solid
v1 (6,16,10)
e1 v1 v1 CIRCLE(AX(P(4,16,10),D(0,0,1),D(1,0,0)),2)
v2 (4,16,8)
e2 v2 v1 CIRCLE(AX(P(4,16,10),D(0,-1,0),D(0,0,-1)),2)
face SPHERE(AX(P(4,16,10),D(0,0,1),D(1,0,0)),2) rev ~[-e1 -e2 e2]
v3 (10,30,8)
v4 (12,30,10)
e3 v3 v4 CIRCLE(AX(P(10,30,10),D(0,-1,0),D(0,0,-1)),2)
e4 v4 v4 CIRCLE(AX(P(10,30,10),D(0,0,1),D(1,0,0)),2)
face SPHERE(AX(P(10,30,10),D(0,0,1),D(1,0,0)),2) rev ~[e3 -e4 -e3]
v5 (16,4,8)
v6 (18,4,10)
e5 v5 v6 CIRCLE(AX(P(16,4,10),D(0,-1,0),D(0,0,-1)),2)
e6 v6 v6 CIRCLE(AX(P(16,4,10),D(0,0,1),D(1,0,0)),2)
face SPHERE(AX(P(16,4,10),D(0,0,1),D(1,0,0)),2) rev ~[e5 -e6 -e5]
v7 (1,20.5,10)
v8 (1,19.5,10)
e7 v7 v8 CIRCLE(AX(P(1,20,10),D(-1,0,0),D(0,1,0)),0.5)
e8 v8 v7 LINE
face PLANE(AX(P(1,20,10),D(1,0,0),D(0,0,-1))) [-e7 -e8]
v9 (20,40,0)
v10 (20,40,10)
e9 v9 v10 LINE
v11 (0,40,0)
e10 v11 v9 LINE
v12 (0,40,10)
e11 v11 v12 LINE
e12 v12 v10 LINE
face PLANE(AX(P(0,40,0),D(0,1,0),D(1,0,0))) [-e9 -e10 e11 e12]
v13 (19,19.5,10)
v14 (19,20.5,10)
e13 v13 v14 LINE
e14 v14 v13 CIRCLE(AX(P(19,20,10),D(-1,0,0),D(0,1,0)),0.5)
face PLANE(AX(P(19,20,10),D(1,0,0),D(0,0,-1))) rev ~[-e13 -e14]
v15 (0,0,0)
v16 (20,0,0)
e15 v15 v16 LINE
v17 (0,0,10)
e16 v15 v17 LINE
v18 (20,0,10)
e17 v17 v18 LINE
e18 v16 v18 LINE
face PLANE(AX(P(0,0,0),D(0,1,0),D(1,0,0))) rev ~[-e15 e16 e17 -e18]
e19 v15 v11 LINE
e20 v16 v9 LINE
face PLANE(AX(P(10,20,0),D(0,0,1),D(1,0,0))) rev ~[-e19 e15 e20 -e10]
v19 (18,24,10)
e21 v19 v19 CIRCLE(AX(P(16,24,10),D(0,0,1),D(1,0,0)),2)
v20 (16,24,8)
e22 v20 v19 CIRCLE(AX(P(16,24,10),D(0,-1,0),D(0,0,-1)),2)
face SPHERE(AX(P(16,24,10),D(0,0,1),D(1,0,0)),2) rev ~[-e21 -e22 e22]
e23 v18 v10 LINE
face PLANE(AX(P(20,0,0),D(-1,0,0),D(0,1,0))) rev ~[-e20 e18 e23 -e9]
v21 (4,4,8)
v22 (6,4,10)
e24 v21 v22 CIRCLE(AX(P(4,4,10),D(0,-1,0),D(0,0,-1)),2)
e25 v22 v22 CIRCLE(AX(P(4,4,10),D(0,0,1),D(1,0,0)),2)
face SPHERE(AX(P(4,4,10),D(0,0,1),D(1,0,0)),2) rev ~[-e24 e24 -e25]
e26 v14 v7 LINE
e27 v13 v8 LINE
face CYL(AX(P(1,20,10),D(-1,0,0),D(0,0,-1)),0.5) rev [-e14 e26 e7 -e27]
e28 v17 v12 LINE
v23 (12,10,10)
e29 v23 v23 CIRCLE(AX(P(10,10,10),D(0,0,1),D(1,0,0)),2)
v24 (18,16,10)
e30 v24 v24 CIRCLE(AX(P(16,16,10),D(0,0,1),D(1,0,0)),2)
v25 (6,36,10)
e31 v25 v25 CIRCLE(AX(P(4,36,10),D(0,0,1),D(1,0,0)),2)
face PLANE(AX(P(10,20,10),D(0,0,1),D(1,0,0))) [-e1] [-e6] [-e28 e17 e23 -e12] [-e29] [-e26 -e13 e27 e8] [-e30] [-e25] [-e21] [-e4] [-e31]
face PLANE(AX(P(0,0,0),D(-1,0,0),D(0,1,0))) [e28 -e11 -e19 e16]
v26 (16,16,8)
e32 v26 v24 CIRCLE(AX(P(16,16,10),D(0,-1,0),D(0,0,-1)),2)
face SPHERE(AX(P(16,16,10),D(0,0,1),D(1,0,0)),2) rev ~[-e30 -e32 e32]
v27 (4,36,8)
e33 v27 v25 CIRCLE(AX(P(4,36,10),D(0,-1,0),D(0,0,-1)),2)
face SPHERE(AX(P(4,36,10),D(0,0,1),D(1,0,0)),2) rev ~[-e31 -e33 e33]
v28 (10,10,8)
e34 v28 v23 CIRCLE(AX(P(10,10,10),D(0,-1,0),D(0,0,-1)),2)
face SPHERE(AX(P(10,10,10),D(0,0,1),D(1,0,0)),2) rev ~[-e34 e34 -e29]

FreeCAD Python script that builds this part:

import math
import FreeCAD as App
import Part
import Sketcher
Q = App.Units.Quantity


def add_polygon(sketch, points):
    """Adds a closed chain of lines whose ends are joined by coincident constraints."""
    first, n = sketch.GeometryCount, len(points)
    for a, b in zip(points, points[1:] + points[:1]):
        sketch.addGeometry(Part.LineSegment(App.Vector(*a, 0), App.Vector(*b, 0)), False)
    for i in range(n):
        sketch.addConstraint(Sketcher.Constraint("Coincident", first + i, 2, first + (i + 1) % n, 1))

doc = App.newDocument("Part")
body = doc.addObject("PartDesign::Body", "Body")

sketch1 = doc.addObject("Sketcher::SketchObject", "Sketch")
body.addObject(sketch1)
sketch1.AttachmentSupport = (doc.XZ_Plane, [""])
sketch1.MapMode = "FlatFace"
sketch1.AttachmentOffset = App.Placement(App.Vector(0, 0, -24), App.Rotation())
sketch1.addGeometry([
    Part.ArcOfCircle(Part.Circle(App.Vector(16, 10, 0), App.Vector(0, 0, 1), 2), math.radians(-90), math.radians(90)),
    Part.LineSegment(App.Vector(16, 12, 0), App.Vector(16, 8, 0)),
], False)
sketch1.addGeometry(Part.LineSegment(App.Vector(16, 8, 0), App.Vector(16, 12, 0)), True)
sketch1.addConstraint([
    Sketcher.Constraint("Coincident", 0, 1, 1, 2),
    Sketcher.Constraint("Coincident", 1, 1, 0, 2),
    Sketcher.Constraint("Vertical", 1),
    Sketcher.Constraint("Vertical", 2),
    Sketcher.Constraint("Coincident", 2, 1, 0, 1),
    Sketcher.Constraint("Equal", 1, 2),
    Sketcher.Constraint("Radius", 0, Q("2 mm")),
    Sketcher.Constraint("DistanceX", -1, 1, 0, 3, Q("16 mm")),
    Sketcher.Constraint("DistanceY", -1, 1, 0, 3, Q("10 mm")),
    Sketcher.Constraint("DistanceX", -1, 1, 0, 1, Q("16 mm")),
])
revolution = doc.addObject("PartDesign::Revolution", "Revolution")
body.addObject(revolution)
revolution.Profile = sketch1
revolution.ReferenceAxis = (sketch1, ["Axis0"])
revolution.Angle = 360
body2 = doc.addObject("PartDesign::Body", "Body001")

sketch2 = doc.addObject("Sketcher::SketchObject", "Sketch001")
body2.addObject(sketch2)
sketch2.AttachmentSupport = (doc.getObject("XZ_Plane001"), [""])
sketch2.MapMode = "FlatFace"
sketch2.AttachmentOffset = App.Placement(App.Vector(0, 0, -30), App.Rotation())
sketch2.addGeometry([
    Part.ArcOfCircle(Part.Circle(App.Vector(10, 10, 0), App.Vector(0, 0, 1), 2), math.radians(-90), math.radians(90)),
    Part.LineSegment(App.Vector(10, 12, 0), App.Vector(10, 8, 0)),
], False)
sketch2.addGeometry(Part.LineSegment(App.Vector(10, 8, 0), App.Vector(10, 12, 0)), True)
sketch2.addConstraint([
    Sketcher.Constraint("Coincident", 0, 1, 1, 2),
    Sketcher.Constraint("Coincident", 1, 1, 0, 2),
    Sketcher.Constraint("Vertical", 1),
    Sketcher.Constraint("Vertical", 2),
    Sketcher.Constraint("Coincident", 2, 1, 0, 1),
    Sketcher.Constraint("Equal", 1, 2),
    Sketcher.Constraint("Radius", 0, Q("2 mm")),
    Sketcher.Constraint("DistanceX", -1, 1, 0, 3, Q("10 mm")),
    Sketcher.Constraint("DistanceY", -1, 1, 0, 3, Q("10 mm")),
    Sketcher.Constraint("DistanceX", -1, 1, 0, 1, Q("10 mm")),
])
revolution2 = doc.addObject("PartDesign::Revolution", "Revolution001")
body2.addObject(revolution2)
revolution2.Profile = sketch2
revolution2.ReferenceAxis = (sketch2, ["Axis0"])
revolution2.Angle = 360
body3 = doc.addObject("PartDesign::Body", "Body002")
body3.AllowCompound = True

sketch3 = doc.addObject("Sketcher::SketchObject", "Sketch002")
body3.addObject(sketch3)
sketch3.AttachmentSupport = (doc.getObject("XZ_Plane002"), [""])
sketch3.MapMode = "FlatFace"
sketch3.AttachmentOffset = App.Placement(App.Vector(0, 0, -36), App.Rotation())
sketch3.addGeometry([
    Part.ArcOfCircle(Part.Circle(App.Vector(4, 10, 0), App.Vector(0, 0, 1), 2), math.radians(-90), math.radians(90)),
    Part.LineSegment(App.Vector(4, 12, 0), App.Vector(4, 8, 0)),
], False)
sketch3.addGeometry(Part.LineSegment(App.Vector(4, 8, 0), App.Vector(4, 12, 0)), True)
sketch3.addConstraint([
    Sketcher.Constraint("Coincident", 0, 1, 1, 2),
    Sketcher.Constraint("Coincident", 1, 1, 0, 2),
    Sketcher.Constraint("Vertical", 1),
    Sketcher.Constraint("Vertical", 2),
    Sketcher.Constraint("Coincident", 2, 1, 0, 1),
    Sketcher.Constraint("Equal", 1, 2),
    Sketcher.Constraint("Radius", 0, Q("2 mm")),
    Sketcher.Constraint("DistanceX", -1, 1, 0, 3, Q("4 mm")),
    Sketcher.Constraint("DistanceY", -1, 1, 0, 3, Q("10 mm")),
    Sketcher.Constraint("DistanceX", -1, 1, 0, 1, Q("4 mm")),
])
revolution3 = doc.addObject("PartDesign::Revolution", "Revolution002")
body3.addObject(revolution3)
revolution3.Profile = sketch3
revolution3.ReferenceAxis = (sketch3, ["Axis0"])
revolution3.Angle = 360
doc.recompute()

boolean = doc.addObject("PartDesign::Boolean", "Boolean")
body3.addObject(boolean)
boolean.Type = "Fuse"
boolean.addObjects([body])
doc.recompute()

boolean2 = doc.addObject("PartDesign::Boolean", "Boolean001")
body3.addObject(boolean2)
boolean2.Type = "Fuse"
boolean2.addObjects([body2])
body4 = doc.addObject("PartDesign::Body", "Body003")

sketch4 = doc.addObject("Sketcher::SketchObject", "Sketch003")
body4.addObject(sketch4)
sketch4.AttachmentSupport = (doc.getObject("XZ_Plane003"), [""])
sketch4.MapMode = "FlatFace"
sketch4.AttachmentOffset = App.Placement(App.Vector(0, 0, -4), App.Rotation())
sketch4.addGeometry([
    Part.ArcOfCircle(Part.Circle(App.Vector(16, 10, 0), App.Vector(0, 0, 1), 2), math.radians(-90), math.radians(90)),
    Part.LineSegment(App.Vector(16, 12, 0), App.Vector(16, 8, 0)),
], False)
sketch4.addGeometry(Part.LineSegment(App.Vector(16, 8, 0), App.Vector(16, 12, 0)), True)
sketch4.addConstraint([
    Sketcher.Constraint("Coincident", 0, 1, 1, 2),
    Sketcher.Constraint("Coincident", 1, 1, 0, 2),
    Sketcher.Constraint("Vertical", 1),
    Sketcher.Constraint("Vertical", 2),
    Sketcher.Constraint("Coincident", 2, 1, 0, 1),
    Sketcher.Constraint("Equal", 1, 2),
    Sketcher.Constraint("Radius", 0, Q("2 mm")),
    Sketcher.Constraint("DistanceX", -1, 1, 0, 3, Q("16 mm")),
    Sketcher.Constraint("DistanceY", -1, 1, 0, 3, Q("10 mm")),
    Sketcher.Constraint("DistanceX", -1, 1, 0, 1, Q("16 mm")),
])
revolution4 = doc.addObject("PartDesign::Revolution", "Revolution003")
body4.addObject(revolution4)
revolution4.Profile = sketch4
revolution4.ReferenceAxis = (sketch4, ["Axis0"])
revolution4.Angle = 360
body5 = doc.addObject("PartDesign::Body", "Body004")

sketch5 = doc.addObject("Sketcher::SketchObject", "Sketch004")
body5.addObject(sketch5)
sketch5.AttachmentSupport = (doc.getObject("XZ_Plane004"), [""])
sketch5.MapMode = "FlatFace"
sketch5.AttachmentOffset = App.Placement(App.Vector(0, 0, -16), App.Rotation())
sketch5.addGeometry([
    Part.ArcOfCircle(Part.Circle(App.Vector(4, 10, 0), App.Vector(0, 0, 1), 2), math.radians(-90), math.radians(90)),
    Part.LineSegment(App.Vector(4, 12, 0), App.Vector(4, 8, 0)),
], False)
sketch5.addGeometry(Part.LineSegment(App.Vector(4, 8, 0), App.Vector(4, 12, 0)), True)
sketch5.addConstraint([
    Sketcher.Constraint("Coincident", 0, 1, 1, 2),
    Sketcher.Constraint("Coincident", 1, 1, 0, 2),
    Sketcher.Constraint("Vertical", 1),
    Sketcher.Constraint("Vertical", 2),
    Sketcher.Constraint("Coincident", 2, 1, 0, 1),
    Sketcher.Constraint("Equal", 1, 2),
    Sketcher.Constraint("Radius", 0, Q("2 mm")),
    Sketcher.Constraint("DistanceX", -1, 1, 0, 3, Q("4 mm")),
    Sketcher.Constraint("DistanceY", -1, 1, 0, 3, Q("10 mm")),
    Sketcher.Constraint("DistanceX", -1, 1, 0, 1, Q("4 mm")),
])
revolution5 = doc.addObject("PartDesign::Revolution", "Revolution004")
body5.addObject(revolution5)
revolution5.Profile = sketch5
revolution5.ReferenceAxis = (sketch5, ["Axis0"])
revolution5.Angle = 360
body6 = doc.addObject("PartDesign::Body", "Body005")

sketch6 = doc.addObject("Sketcher::SketchObject", "Sketch005")
body6.addObject(sketch6)
sketch6.AttachmentSupport = (doc.getObject("XZ_Plane005"), [""])
sketch6.MapMode = "FlatFace"
sketch6.AttachmentOffset = App.Placement(App.Vector(0, 0, -16), App.Rotation())
sketch6.addGeometry([
    Part.ArcOfCircle(Part.Circle(App.Vector(16, 10, 0), App.Vector(0, 0, 1), 2), math.radians(-90), math.radians(90)),
    Part.LineSegment(App.Vector(16, 12, 0), App.Vector(16, 8, 0)),
], False)
sketch6.addGeometry(Part.LineSegment(App.Vector(16, 8, 0), App.Vector(16, 12, 0)), True)
sketch6.addConstraint([
    Sketcher.Constraint("Coincident", 0, 1, 1, 2),
    Sketcher.Constraint("Coincident", 1, 1, 0, 2),
    Sketcher.Constraint("Vertical", 1),
    Sketcher.Constraint("Vertical", 2),
    Sketcher.Constraint("Coincident", 2, 1, 0, 1),
    Sketcher.Constraint("Equal", 1, 2),
    Sketcher.Constraint("Radius", 0, Q("2 mm")),
    Sketcher.Constraint("DistanceX", -1, 1, 0, 3, Q("16 mm")),
    Sketcher.Constraint("DistanceY", -1, 1, 0, 3, Q("10 mm")),
    Sketcher.Constraint("DistanceX", -1, 1, 0, 1, Q("16 mm")),
])
revolution6 = doc.addObject("PartDesign::Revolution", "Revolution005")
body6.addObject(revolution6)
revolution6.Profile = sketch6
revolution6.ReferenceAxis = (sketch6, ["Axis0"])
revolution6.Angle = 360
body7 = doc.addObject("PartDesign::Body", "Body006")

sketch7 = doc.addObject("Sketcher::SketchObject", "Sketch006")
body7.addObject(sketch7)
sketch7.AttachmentSupport = (doc.getObject("XZ_Plane006"), [""])
sketch7.MapMode = "FlatFace"
sketch7.AttachmentOffset = App.Placement(App.Vector(0, 0, -10), App.Rotation())
sketch7.addGeometry([
    Part.ArcOfCircle(Part.Circle(App.Vector(10, 10, 0), App.Vector(0, 0, 1), 2), math.radians(-90), math.radians(90)),
    Part.LineSegment(App.Vector(10, 12, 0), App.Vector(10, 8, 0)),
], False)
sketch7.addGeometry(Part.LineSegment(App.Vector(10, 8, 0), App.Vector(10, 12, 0)), True)
sketch7.addConstraint([
    Sketcher.Constraint("Coincident", 0, 1, 1, 2),
    Sketcher.Constraint("Coincident", 1, 1, 0, 2),
    Sketcher.Constraint("Vertical", 1),
    Sketcher.Constraint("Vertical", 2),
    Sketcher.Constraint("Coincident", 2, 1, 0, 1),
    Sketcher.Constraint("Equal", 1, 2),
    Sketcher.Constraint("Radius", 0, Q("2 mm")),
    Sketcher.Constraint("DistanceX", -1, 1, 0, 3, Q("10 mm")),
    Sketcher.Constraint("DistanceY", -1, 1, 0, 3, Q("10 mm")),
    Sketcher.Constraint("DistanceX", -1, 1, 0, 1, Q("10 mm")),
])
revolution7 = doc.addObject("PartDesign::Revolution", "Revolution006")
body7.addObject(revolution7)
revolution7.Profile = sketch7
revolution7.ReferenceAxis = (sketch7, ["Axis0"])
revolution7.Angle = 360
body8 = doc.addObject("PartDesign::Body", "Body007")
body8.AllowCompound = True

sketch8 = doc.addObject("Sketcher::SketchObject", "Sketch007")
body8.addObject(sketch8)
sketch8.AttachmentSupport = (doc.getObject("XZ_Plane007"), [""])
sketch8.MapMode = "FlatFace"
sketch8.AttachmentOffset = App.Placement(App.Vector(0, 0, -4), App.Rotation())
sketch8.addGeometry([
    Part.ArcOfCircle(Part.Circle(App.Vector(4, 10, 0), App.Vector(0, 0, 1), 2), math.radians(-90), math.radians(90)),
    Part.LineSegment(App.Vector(4, 12, 0), App.Vector(4, 8, 0)),
], False)
sketch8.addGeometry(Part.LineSegment(App.Vector(4, 8, 0), App.Vector(4, 12, 0)), True)
sketch8.addConstraint([
    Sketcher.Constraint("Coincident", 0, 1, 1, 2),
    Sketcher.Constraint("Coincident", 1, 1, 0, 2),
    Sketcher.Constraint("Vertical", 1),
    Sketcher.Constraint("Vertical", 2),
    Sketcher.Constraint("Coincident", 2, 1, 0, 1),
    Sketcher.Constraint("Equal", 1, 2),
    Sketcher.Constraint("Radius", 0, Q("2 mm")),
    Sketcher.Constraint("DistanceX", -1, 1, 0, 3, Q("4 mm")),
    Sketcher.Constraint("DistanceY", -1, 1, 0, 3, Q("10 mm")),
    Sketcher.Constraint("DistanceX", -1, 1, 0, 1, Q("4 mm")),
])
revolution8 = doc.addObject("PartDesign::Revolution", "Revolution007")
body8.addObject(revolution8)
revolution8.Profile = sketch8
revolution8.ReferenceAxis = (sketch8, ["Axis0"])
revolution8.Angle = 360
doc.recompute()

boolean3 = doc.addObject("PartDesign::Boolean", "Boolean002")
body8.addObject(boolean3)
boolean3.Type = "Fuse"
boolean3.addObjects([body4])
doc.recompute()

boolean4 = doc.addObject("PartDesign::Boolean", "Boolean003")
body8.addObject(boolean4)
boolean4.Type = "Fuse"
boolean4.addObjects([body5])
doc.recompute()

boolean5 = doc.addObject("PartDesign::Boolean", "Boolean004")
body8.addObject(boolean5)
boolean5.Type = "Fuse"
boolean5.addObjects([body6])
doc.recompute()

boolean6 = doc.addObject("PartDesign::Boolean", "Boolean005")
body8.addObject(boolean6)
boolean6.Type = "Fuse"
boolean6.addObjects([body7])
body9 = doc.addObject("PartDesign::Body", "Body008")

sketch9 = doc.addObject("Sketcher::SketchObject", "Sketch008")
body9.addObject(sketch9)
sketch9.AttachmentSupport = (doc.getObject("YZ_Plane008"), [""])
sketch9.MapMode = "FlatFace"
sketch9.AttachmentOffset = App.Placement(App.Vector(0, 0, 1), App.Rotation())
sketch9.addGeometry(Part.Circle(App.Vector(20, 10, 0), App.Vector(0, 0, 1), 0.5), False)
sketch9.addConstraint([
    Sketcher.Constraint("Diameter", 0, Q("1 mm")),
    Sketcher.Constraint("DistanceX", -1, 1, 0, 3, Q("20 mm")),
    Sketcher.Constraint("DistanceY", -1, 1, 0, 3, Q("10 mm")),
])
pad1 = doc.addObject("PartDesign::Pad", "Pad")
body9.addObject(pad1)
pad1.Profile = sketch9
pad1.Length = 18
body10 = doc.addObject("PartDesign::Body", "Body009")

sketch10 = doc.addObject("Sketcher::SketchObject", "Sketch009")
body10.addObject(sketch10)
sketch10.AttachmentSupport = (doc.getObject("XY_Plane009"), [""])
sketch10.MapMode = "FlatFace"
add_polygon(sketch10, [(0, 40), (0, 0), (20, 0), (20, 40)])
sketch10.addConstraint([
    Sketcher.Constraint("Vertical", 0),
    Sketcher.Constraint("Horizontal", 1),
    Sketcher.Constraint("Vertical", 2),
    Sketcher.Constraint("Horizontal", 3),
    Sketcher.Constraint("Coincident", 0, 2, -1, 1),
    Sketcher.Constraint("DistanceX", 1, 1, 1, 2, Q("20 mm")),
    Sketcher.Constraint("DistanceY", 0, 2, 0, 1, Q("40 mm")),
])
pad2 = doc.addObject("PartDesign::Pad", "Pad001")
body10.addObject(pad2)
pad2.Profile = sketch10
pad2.Length = 10
doc.recompute()

boolean7 = doc.addObject("PartDesign::Boolean", "Boolean006")
body10.addObject(boolean7)
boolean7.Type = "Cut"
boolean7.addObjects([body9])
doc.recompute()

boolean8 = doc.addObject("PartDesign::Boolean", "Boolean007")
body10.addObject(boolean8)
boolean8.Type = "Cut"
boolean8.addObjects([body8])
doc.recompute()

boolean9 = doc.addObject("PartDesign::Boolean", "Boolean008")
body10.addObject(boolean9)
boolean9.Type = "Cut"
boolean9.addObjects([body3])

doc.recompute()
